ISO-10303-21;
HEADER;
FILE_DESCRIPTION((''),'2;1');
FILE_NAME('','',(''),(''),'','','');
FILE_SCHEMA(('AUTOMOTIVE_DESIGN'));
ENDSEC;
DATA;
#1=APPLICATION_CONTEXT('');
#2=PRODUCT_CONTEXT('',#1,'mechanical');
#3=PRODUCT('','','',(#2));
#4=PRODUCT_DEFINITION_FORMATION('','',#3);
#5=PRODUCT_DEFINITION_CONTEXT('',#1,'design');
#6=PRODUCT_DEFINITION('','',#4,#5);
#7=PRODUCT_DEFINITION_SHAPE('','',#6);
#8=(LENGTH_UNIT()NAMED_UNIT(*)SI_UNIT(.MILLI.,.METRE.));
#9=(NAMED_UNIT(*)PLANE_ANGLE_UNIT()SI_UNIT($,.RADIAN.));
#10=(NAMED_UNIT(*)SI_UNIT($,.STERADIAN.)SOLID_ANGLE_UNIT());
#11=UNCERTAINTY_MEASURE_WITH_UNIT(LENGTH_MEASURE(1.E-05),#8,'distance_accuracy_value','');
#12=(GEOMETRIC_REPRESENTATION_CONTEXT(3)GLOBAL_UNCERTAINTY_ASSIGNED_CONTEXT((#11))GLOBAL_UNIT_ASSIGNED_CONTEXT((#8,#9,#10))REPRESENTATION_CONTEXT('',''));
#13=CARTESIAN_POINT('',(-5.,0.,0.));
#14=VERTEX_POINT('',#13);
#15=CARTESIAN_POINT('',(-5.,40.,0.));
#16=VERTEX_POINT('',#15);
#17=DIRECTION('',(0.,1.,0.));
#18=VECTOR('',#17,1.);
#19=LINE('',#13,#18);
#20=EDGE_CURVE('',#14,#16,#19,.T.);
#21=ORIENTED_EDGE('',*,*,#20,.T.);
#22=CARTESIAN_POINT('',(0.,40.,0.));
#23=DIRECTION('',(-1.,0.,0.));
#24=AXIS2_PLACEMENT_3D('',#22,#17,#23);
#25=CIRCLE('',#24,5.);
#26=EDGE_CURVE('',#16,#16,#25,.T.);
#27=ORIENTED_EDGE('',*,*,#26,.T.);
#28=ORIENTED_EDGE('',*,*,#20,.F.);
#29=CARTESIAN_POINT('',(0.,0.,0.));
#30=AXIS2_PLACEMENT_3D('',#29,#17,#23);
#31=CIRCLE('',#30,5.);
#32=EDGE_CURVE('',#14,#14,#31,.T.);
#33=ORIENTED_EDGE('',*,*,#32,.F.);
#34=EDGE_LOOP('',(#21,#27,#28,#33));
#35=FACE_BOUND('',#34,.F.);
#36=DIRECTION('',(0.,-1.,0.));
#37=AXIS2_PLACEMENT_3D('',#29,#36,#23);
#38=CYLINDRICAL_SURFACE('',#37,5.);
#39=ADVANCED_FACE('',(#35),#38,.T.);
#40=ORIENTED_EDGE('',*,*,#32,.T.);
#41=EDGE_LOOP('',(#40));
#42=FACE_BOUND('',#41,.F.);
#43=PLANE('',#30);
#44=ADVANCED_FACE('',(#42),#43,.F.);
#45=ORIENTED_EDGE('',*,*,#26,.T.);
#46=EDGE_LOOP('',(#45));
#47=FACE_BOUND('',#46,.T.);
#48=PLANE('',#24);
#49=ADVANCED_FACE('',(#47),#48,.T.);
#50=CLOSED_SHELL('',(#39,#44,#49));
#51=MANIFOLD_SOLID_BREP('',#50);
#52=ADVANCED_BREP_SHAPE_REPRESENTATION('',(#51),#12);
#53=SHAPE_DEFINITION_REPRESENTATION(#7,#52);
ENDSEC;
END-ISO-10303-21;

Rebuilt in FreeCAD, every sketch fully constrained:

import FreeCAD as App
import Part
import Sketcher
Q = App.Units.Quantity

doc = App.newDocument("Part")
body = doc.addObject("PartDesign::Body", "Body")

# Sketch on XZ plane
sketch1 = doc.addObject("Sketcher::SketchObject", "Sketch")
body.addObject(sketch1)
sketch1.AttachmentSupport = (doc.XZ_Plane, [""])
sketch1.MapMode = "FlatFace"
sketch1.addGeometry(Part.Circle(App.Vector(0, 0, 0), App.Vector(0, 0, 1), 5), False)
sketch1.addConstraint(Sketcher.Constraint("Coincident", 0, 3, -1, 1))
sketch1.addConstraint(Sketcher.Constraint("Diameter", 0, Q("10 mm")))
pad1 = doc.addObject("PartDesign::Pad", "Pad")
body.addObject(pad1)
pad1.Profile = sketch1
pad1.Length = 40
pad1.Reversed = True

doc.recompute()
